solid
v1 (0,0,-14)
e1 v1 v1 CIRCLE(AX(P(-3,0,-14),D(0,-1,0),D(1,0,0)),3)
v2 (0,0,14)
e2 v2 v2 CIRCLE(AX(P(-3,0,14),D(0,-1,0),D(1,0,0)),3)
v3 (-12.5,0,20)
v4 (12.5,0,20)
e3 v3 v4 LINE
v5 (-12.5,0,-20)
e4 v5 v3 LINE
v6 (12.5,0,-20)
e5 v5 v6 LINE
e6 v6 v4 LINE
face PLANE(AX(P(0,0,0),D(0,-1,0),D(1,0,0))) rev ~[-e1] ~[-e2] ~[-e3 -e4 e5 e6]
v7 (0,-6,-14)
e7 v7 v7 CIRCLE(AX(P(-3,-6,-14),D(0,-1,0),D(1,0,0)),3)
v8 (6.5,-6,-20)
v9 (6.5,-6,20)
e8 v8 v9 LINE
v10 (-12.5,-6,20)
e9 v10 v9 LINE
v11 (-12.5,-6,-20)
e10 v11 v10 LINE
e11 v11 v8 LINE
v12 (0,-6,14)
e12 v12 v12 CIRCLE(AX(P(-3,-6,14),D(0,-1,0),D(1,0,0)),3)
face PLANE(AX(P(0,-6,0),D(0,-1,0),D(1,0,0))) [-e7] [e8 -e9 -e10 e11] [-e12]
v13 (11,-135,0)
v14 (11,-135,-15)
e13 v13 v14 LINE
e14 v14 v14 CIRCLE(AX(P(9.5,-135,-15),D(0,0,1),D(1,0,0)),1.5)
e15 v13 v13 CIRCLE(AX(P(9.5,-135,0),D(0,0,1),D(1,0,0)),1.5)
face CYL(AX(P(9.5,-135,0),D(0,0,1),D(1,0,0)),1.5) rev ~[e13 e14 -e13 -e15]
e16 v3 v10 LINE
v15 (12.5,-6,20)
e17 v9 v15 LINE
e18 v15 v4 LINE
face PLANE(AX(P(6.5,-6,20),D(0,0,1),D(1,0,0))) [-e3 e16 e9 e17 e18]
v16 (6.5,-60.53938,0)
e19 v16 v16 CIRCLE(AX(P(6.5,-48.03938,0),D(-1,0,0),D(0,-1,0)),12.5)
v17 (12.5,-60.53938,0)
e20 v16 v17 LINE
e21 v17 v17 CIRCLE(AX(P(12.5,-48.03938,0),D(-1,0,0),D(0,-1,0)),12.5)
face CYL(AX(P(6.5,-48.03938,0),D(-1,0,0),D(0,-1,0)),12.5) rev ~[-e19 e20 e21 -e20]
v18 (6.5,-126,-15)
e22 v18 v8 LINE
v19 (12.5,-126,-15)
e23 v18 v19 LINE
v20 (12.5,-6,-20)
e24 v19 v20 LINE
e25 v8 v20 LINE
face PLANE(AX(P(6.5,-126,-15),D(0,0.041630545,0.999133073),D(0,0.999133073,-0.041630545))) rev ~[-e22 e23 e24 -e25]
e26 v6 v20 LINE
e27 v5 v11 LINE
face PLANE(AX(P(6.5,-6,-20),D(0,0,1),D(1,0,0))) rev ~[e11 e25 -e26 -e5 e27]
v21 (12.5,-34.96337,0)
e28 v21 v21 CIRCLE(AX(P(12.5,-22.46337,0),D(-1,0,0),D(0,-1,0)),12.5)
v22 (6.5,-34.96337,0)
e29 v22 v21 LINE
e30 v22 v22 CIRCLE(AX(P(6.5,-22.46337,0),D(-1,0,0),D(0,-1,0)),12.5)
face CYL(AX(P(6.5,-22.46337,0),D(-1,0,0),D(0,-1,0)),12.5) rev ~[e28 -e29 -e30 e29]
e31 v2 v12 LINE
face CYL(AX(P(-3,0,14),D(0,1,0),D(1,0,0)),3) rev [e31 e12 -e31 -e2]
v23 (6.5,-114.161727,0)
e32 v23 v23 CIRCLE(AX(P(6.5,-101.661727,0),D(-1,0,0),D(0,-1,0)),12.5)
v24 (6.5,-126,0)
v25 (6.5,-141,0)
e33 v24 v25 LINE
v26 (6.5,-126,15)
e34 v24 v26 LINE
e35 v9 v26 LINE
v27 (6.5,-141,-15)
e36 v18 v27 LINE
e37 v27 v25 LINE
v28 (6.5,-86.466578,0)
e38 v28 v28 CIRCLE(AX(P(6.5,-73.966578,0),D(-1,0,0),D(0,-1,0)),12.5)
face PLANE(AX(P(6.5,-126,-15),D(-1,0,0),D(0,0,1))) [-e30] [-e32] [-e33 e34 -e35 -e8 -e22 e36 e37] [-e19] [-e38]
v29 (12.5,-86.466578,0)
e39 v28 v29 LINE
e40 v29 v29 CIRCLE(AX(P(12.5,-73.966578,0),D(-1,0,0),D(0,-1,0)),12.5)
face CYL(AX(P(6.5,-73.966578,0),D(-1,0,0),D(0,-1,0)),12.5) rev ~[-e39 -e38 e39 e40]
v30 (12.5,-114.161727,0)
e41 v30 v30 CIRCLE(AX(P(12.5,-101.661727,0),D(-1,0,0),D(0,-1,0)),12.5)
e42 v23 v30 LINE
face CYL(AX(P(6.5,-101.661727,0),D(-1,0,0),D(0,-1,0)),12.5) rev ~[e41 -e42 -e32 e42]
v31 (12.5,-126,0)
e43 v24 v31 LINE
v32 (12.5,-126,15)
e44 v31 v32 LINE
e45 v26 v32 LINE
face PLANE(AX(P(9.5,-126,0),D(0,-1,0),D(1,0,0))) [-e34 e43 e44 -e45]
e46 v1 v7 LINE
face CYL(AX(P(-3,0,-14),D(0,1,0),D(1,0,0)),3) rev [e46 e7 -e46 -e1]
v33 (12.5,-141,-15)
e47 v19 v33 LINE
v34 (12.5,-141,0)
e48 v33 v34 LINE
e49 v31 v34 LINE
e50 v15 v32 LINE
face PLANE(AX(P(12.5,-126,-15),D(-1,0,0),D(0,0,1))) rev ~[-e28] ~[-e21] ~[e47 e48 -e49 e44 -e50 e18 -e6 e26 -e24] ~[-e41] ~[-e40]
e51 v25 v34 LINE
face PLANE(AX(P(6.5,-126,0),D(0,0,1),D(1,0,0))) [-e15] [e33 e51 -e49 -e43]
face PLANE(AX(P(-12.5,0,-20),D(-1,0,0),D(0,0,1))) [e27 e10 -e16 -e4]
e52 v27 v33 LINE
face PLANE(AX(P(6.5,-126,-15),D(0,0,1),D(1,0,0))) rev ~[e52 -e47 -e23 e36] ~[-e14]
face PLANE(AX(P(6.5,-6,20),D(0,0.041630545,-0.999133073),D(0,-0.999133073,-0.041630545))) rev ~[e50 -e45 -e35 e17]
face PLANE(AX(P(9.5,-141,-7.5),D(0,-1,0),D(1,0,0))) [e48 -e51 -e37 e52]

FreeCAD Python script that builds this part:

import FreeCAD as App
import Part
import Sketcher

V = App.Vector
Q = App.Units.Quantity


def add_polygon(sketch, points):
    """Adds a closed chain of lines whose ends are joined by coincident constraints."""
    first, n = sketch.GeometryCount, len(points)
    for a, b in zip(points, points[1:] + points[:1]):
        sketch.addGeometry(Part.LineSegment(App.Vector(*a, 0), App.Vector(*b, 0)), False)
    for i in range(n):
        sketch.addConstraint(Sketcher.Constraint("Coincident", first + i, 2, first + (i + 1) % n, 1))

doc = App.newDocument("Part")
body = doc.addObject("PartDesign::Body", "Body")

sketch1 = body.newObject("Sketcher::SketchObject", "Sketch")
sketch1.AttachmentSupport = (doc.getObject("XZ_Plane"), [""])
sketch1.MapMode = "FlatFace"
add_polygon(sketch1, [(-12.5, 20), (-12.5, -20), (12.5, -20), (12.5, 20)])
sketch1.addGeometry(Part.Circle(V(-3, -14, 0), V(0, 0, 1), 3), False)
sketch1.addGeometry(Part.Circle(V(-3, 14, 0), V(0, 0, 1), 3), False)
sketch1.addConstraint(Sketcher.Constraint("Vertical", 0))
sketch1.addConstraint(Sketcher.Constraint("Horizontal", 1))
sketch1.addConstraint(Sketcher.Constraint("Vertical", 2))
sketch1.addConstraint(Sketcher.Constraint("Horizontal", 3))
sketch1.addConstraint(Sketcher.Constraint("Equal", 4, 5))
sketch1.addConstraint(Sketcher.Constraint("Symmetric", 0, 2, 2, 2, -1, 1))
sketch1.addConstraint(Sketcher.Constraint("Symmetric", 4, 3, 5, 3, -1))
sketch1.addConstraint(Sketcher.Constraint("Diameter", 4, Q("6 mm")))
sketch1.addConstraint(Sketcher.Constraint("DistanceX", 1, 1, 1, 2, Q("25 mm")))
sketch1.addConstraint(Sketcher.Constraint("DistanceY", 0, 2, 0, 1, Q("40 mm")))
sketch1.addConstraint(Sketcher.Constraint("DistanceX", 4, 3, -1, 1, Q("3 mm")))
sketch1.addConstraint(Sketcher.Constraint("DistanceY", 4, 3, -1, 1, Q("14 mm")))
pad1 = body.newObject("PartDesign::Pad", "Pad")
pad1.Profile = sketch1
pad1.Length = 6

sketch2 = body.newObject("Sketcher::SketchObject", "Sketch001")
sketch2.AttachmentSupport = (doc.getObject("XZ_Plane"), [""])
sketch2.MapMode = "FlatFace"
sketch2.AttachmentOffset = App.Placement(V(0, 0, 6), App.Rotation())
add_polygon(sketch2, [(6.5, 20), (6.5, -20), (12.5, -20), (12.5, 20)])
sketch2.addConstraint(Sketcher.Constraint("Vertical", 0))
sketch2.addConstraint(Sketcher.Constraint("Horizontal", 1))
sketch2.addConstraint(Sketcher.Constraint("Vertical", 2))
sketch2.addConstraint(Sketcher.Constraint("Horizontal", 3))
sketch2.addConstraint(Sketcher.Constraint("DistanceX", 1, 1, 1, 2, Q("6 mm")))
sketch2.addConstraint(Sketcher.Constraint("DistanceY", 0, 2, 0, 1, Q("40 mm")))
sketch2.addConstraint(Sketcher.Constraint("DistanceY", 0, 2, -1, 1, Q("20 mm")))
sketch2.addConstraint(Sketcher.Constraint("DistanceX", -1, 1, 0, 2, Q("6.5 mm")))
pad2 = body.newObject("PartDesign::Pad", "Pad001")
pad2.Profile = sketch2
pad2.Length = 120

sketch3 = body.newObject("Sketcher::SketchObject", "Sketch002")
sketch3.AttachmentSupport = (doc.getObject("YZ_Plane"), [""])
sketch3.MapMode = "FlatFace"
sketch3.AttachmentOffset = App.Placement(V(0, 0, 6.5), App.Rotation())
add_polygon(sketch3, [(-126, 20), (-6, 20), (-126, 15)])
add_polygon(sketch3, [(-126, -15), (-6, -20), (-126, -20)])
sketch3.addGeometry(Part.Circle(V(-101.661727, 0, 0), V(0, 0, 1), 12.5), False)
sketch3.addGeometry(Part.Circle(V(-73.966578, 0, 0), V(0, 0, 1), 12.5), False)
sketch3.addGeometry(Part.Circle(V(-48.03938, 0, 0), V(0, 0, 1), 12.5), False)
sketch3.addGeometry(Part.Circle(V(-22.46337, 0, 0), V(0, 0, 1), 12.5), False)
sketch3.addConstraint(Sketcher.Constraint("Horizontal", 0))
sketch3.addConstraint(Sketcher.Constraint("Vertical", 2))
sketch3.addConstraint(Sketcher.Constraint("Horizontal", 4))
sketch3.addConstraint(Sketcher.Constraint("Vertical", 5))
sketch3.addConstraint(Sketcher.Constraint("Equal", 6, 7))
sketch3.addConstraint(Sketcher.Constraint("Equal", 7, 8))
sketch3.addConstraint(Sketcher.Constraint("Equal", 8, 9))
sketch3.addConstraint(Sketcher.Constraint("Symmetric", 0, 2, 3, 2, -1))
sketch3.addConstraint(Sketcher.Constraint("Symmetric", 1, 2, 5, 2, -1))
sketch3.addConstraint(Sketcher.Constraint("PointOnObject", 6, 3, -1))
sketch3.addConstraint(Sketcher.Constraint("PointOnObject", 7, 3, -1))
sketch3.addConstraint(Sketcher.Constraint("PointOnObject", 8, 3, -1))
sketch3.addConstraint(Sketcher.Constraint("PointOnObject", 9, 3, -1))
sketch3.addConstraint(Sketcher.Constraint("Diameter", 6, Q("25 mm")))
sketch3.addConstraint(Sketcher.Constraint("DistanceX", 0, 1, 0, 2, Q("120 mm")))
sketch3.addConstraint(Sketcher.Constraint("DistanceY", 2, 1, 2, 2, Q("5 mm")))
sketch3.addConstraint(Sketcher.Constraint("DistanceX", 0, 2, -1, 1, Q("6 mm")))
sketch3.addConstraint(Sketcher.Constraint("DistanceY", -1, 1, 0, 2, Q("20 mm")))
sketch3.addConstraint(Sketcher.Constraint("DistanceX", 7, 3, -1, 1, Q("73.966578 mm")))
sketch3.addConstraint(Sketcher.Constraint("DistanceX", 8, 3, -1, 1, Q("48.03938 mm")))
sketch3.addConstraint(Sketcher.Constraint("DistanceX", 9, 3, -1, 1, Q("22.46337 mm")))
sketch3.addConstraint(Sketcher.Constraint("DistanceX", 6, 3, 7, 3, Q("27.695149 mm")))
pocket1 = body.newObject("PartDesign::Pocket", "Pocket")
pocket1.Profile = sketch3
pocket1.Length = 25.4
pocket1.Reversed = True

sketch4 = body.newObject("Sketcher::SketchObject", "Sketch003")
sketch4.AttachmentSupport = (doc.getObject("XZ_Plane"), [""])
sketch4.MapMode = "FlatFace"
sketch4.AttachmentOffset = App.Placement(V(0, 0, 126), App.Rotation())
add_polygon(sketch4, [(6.5, 0), (6.5, -15), (12.5, -15), (12.5, 0)])
sketch4.addConstraint(Sketcher.Constraint("Vertical", 0))
sketch4.addConstraint(Sketcher.Constraint("Horizontal", 1))
sketch4.addConstraint(Sketcher.Constraint("Vertical", 2))
sketch4.addConstraint(Sketcher.Constraint("Horizontal", 3))
sketch4.addConstraint(Sketcher.Constraint("PointOnObject", 2, 2, -1))
sketch4.addConstraint(Sketcher.Constraint("DistanceX", 1, 1, 1, 2, Q("6 mm")))
sketch4.addConstraint(Sketcher.Constraint("DistanceY", 0, 2, 0, 1, Q("15 mm")))
sketch4.addConstraint(Sketcher.Constraint("DistanceX", -1, 1, 0, 2, Q("6.5 mm")))
pad3 = body.newObject("PartDesign::Pad", "Pad002")
pad3.Profile = sketch4
pad3.Length = 15

sketch5 = body.newObject("Sketcher::SketchObject", "Sketch004")
sketch5.AttachmentSupport = (doc.getObject("XY_Plane"), [""])
sketch5.MapMode = "FlatFace"
sketch5.addGeometry(Part.Circle(V(9.5, -135, 0), V(0, 0, 1), 1.5), False)
sketch5.addConstraint(Sketcher.Constraint("Diameter", 0, Q("3 mm")))
sketch5.addConstraint(Sketcher.Constraint("DistanceY", 0, 3, -1, 1, Q("135 mm")))
sketch5.addConstraint(Sketcher.Constraint("DistanceX", -1, 1, 0, 3, Q("9.5 mm")))
pocket2 = body.newObject("PartDesign::Pocket", "Pocket001")
pocket2.Profile = sketch5
pocket2.Type = "ThroughAll"

doc.recompute()
